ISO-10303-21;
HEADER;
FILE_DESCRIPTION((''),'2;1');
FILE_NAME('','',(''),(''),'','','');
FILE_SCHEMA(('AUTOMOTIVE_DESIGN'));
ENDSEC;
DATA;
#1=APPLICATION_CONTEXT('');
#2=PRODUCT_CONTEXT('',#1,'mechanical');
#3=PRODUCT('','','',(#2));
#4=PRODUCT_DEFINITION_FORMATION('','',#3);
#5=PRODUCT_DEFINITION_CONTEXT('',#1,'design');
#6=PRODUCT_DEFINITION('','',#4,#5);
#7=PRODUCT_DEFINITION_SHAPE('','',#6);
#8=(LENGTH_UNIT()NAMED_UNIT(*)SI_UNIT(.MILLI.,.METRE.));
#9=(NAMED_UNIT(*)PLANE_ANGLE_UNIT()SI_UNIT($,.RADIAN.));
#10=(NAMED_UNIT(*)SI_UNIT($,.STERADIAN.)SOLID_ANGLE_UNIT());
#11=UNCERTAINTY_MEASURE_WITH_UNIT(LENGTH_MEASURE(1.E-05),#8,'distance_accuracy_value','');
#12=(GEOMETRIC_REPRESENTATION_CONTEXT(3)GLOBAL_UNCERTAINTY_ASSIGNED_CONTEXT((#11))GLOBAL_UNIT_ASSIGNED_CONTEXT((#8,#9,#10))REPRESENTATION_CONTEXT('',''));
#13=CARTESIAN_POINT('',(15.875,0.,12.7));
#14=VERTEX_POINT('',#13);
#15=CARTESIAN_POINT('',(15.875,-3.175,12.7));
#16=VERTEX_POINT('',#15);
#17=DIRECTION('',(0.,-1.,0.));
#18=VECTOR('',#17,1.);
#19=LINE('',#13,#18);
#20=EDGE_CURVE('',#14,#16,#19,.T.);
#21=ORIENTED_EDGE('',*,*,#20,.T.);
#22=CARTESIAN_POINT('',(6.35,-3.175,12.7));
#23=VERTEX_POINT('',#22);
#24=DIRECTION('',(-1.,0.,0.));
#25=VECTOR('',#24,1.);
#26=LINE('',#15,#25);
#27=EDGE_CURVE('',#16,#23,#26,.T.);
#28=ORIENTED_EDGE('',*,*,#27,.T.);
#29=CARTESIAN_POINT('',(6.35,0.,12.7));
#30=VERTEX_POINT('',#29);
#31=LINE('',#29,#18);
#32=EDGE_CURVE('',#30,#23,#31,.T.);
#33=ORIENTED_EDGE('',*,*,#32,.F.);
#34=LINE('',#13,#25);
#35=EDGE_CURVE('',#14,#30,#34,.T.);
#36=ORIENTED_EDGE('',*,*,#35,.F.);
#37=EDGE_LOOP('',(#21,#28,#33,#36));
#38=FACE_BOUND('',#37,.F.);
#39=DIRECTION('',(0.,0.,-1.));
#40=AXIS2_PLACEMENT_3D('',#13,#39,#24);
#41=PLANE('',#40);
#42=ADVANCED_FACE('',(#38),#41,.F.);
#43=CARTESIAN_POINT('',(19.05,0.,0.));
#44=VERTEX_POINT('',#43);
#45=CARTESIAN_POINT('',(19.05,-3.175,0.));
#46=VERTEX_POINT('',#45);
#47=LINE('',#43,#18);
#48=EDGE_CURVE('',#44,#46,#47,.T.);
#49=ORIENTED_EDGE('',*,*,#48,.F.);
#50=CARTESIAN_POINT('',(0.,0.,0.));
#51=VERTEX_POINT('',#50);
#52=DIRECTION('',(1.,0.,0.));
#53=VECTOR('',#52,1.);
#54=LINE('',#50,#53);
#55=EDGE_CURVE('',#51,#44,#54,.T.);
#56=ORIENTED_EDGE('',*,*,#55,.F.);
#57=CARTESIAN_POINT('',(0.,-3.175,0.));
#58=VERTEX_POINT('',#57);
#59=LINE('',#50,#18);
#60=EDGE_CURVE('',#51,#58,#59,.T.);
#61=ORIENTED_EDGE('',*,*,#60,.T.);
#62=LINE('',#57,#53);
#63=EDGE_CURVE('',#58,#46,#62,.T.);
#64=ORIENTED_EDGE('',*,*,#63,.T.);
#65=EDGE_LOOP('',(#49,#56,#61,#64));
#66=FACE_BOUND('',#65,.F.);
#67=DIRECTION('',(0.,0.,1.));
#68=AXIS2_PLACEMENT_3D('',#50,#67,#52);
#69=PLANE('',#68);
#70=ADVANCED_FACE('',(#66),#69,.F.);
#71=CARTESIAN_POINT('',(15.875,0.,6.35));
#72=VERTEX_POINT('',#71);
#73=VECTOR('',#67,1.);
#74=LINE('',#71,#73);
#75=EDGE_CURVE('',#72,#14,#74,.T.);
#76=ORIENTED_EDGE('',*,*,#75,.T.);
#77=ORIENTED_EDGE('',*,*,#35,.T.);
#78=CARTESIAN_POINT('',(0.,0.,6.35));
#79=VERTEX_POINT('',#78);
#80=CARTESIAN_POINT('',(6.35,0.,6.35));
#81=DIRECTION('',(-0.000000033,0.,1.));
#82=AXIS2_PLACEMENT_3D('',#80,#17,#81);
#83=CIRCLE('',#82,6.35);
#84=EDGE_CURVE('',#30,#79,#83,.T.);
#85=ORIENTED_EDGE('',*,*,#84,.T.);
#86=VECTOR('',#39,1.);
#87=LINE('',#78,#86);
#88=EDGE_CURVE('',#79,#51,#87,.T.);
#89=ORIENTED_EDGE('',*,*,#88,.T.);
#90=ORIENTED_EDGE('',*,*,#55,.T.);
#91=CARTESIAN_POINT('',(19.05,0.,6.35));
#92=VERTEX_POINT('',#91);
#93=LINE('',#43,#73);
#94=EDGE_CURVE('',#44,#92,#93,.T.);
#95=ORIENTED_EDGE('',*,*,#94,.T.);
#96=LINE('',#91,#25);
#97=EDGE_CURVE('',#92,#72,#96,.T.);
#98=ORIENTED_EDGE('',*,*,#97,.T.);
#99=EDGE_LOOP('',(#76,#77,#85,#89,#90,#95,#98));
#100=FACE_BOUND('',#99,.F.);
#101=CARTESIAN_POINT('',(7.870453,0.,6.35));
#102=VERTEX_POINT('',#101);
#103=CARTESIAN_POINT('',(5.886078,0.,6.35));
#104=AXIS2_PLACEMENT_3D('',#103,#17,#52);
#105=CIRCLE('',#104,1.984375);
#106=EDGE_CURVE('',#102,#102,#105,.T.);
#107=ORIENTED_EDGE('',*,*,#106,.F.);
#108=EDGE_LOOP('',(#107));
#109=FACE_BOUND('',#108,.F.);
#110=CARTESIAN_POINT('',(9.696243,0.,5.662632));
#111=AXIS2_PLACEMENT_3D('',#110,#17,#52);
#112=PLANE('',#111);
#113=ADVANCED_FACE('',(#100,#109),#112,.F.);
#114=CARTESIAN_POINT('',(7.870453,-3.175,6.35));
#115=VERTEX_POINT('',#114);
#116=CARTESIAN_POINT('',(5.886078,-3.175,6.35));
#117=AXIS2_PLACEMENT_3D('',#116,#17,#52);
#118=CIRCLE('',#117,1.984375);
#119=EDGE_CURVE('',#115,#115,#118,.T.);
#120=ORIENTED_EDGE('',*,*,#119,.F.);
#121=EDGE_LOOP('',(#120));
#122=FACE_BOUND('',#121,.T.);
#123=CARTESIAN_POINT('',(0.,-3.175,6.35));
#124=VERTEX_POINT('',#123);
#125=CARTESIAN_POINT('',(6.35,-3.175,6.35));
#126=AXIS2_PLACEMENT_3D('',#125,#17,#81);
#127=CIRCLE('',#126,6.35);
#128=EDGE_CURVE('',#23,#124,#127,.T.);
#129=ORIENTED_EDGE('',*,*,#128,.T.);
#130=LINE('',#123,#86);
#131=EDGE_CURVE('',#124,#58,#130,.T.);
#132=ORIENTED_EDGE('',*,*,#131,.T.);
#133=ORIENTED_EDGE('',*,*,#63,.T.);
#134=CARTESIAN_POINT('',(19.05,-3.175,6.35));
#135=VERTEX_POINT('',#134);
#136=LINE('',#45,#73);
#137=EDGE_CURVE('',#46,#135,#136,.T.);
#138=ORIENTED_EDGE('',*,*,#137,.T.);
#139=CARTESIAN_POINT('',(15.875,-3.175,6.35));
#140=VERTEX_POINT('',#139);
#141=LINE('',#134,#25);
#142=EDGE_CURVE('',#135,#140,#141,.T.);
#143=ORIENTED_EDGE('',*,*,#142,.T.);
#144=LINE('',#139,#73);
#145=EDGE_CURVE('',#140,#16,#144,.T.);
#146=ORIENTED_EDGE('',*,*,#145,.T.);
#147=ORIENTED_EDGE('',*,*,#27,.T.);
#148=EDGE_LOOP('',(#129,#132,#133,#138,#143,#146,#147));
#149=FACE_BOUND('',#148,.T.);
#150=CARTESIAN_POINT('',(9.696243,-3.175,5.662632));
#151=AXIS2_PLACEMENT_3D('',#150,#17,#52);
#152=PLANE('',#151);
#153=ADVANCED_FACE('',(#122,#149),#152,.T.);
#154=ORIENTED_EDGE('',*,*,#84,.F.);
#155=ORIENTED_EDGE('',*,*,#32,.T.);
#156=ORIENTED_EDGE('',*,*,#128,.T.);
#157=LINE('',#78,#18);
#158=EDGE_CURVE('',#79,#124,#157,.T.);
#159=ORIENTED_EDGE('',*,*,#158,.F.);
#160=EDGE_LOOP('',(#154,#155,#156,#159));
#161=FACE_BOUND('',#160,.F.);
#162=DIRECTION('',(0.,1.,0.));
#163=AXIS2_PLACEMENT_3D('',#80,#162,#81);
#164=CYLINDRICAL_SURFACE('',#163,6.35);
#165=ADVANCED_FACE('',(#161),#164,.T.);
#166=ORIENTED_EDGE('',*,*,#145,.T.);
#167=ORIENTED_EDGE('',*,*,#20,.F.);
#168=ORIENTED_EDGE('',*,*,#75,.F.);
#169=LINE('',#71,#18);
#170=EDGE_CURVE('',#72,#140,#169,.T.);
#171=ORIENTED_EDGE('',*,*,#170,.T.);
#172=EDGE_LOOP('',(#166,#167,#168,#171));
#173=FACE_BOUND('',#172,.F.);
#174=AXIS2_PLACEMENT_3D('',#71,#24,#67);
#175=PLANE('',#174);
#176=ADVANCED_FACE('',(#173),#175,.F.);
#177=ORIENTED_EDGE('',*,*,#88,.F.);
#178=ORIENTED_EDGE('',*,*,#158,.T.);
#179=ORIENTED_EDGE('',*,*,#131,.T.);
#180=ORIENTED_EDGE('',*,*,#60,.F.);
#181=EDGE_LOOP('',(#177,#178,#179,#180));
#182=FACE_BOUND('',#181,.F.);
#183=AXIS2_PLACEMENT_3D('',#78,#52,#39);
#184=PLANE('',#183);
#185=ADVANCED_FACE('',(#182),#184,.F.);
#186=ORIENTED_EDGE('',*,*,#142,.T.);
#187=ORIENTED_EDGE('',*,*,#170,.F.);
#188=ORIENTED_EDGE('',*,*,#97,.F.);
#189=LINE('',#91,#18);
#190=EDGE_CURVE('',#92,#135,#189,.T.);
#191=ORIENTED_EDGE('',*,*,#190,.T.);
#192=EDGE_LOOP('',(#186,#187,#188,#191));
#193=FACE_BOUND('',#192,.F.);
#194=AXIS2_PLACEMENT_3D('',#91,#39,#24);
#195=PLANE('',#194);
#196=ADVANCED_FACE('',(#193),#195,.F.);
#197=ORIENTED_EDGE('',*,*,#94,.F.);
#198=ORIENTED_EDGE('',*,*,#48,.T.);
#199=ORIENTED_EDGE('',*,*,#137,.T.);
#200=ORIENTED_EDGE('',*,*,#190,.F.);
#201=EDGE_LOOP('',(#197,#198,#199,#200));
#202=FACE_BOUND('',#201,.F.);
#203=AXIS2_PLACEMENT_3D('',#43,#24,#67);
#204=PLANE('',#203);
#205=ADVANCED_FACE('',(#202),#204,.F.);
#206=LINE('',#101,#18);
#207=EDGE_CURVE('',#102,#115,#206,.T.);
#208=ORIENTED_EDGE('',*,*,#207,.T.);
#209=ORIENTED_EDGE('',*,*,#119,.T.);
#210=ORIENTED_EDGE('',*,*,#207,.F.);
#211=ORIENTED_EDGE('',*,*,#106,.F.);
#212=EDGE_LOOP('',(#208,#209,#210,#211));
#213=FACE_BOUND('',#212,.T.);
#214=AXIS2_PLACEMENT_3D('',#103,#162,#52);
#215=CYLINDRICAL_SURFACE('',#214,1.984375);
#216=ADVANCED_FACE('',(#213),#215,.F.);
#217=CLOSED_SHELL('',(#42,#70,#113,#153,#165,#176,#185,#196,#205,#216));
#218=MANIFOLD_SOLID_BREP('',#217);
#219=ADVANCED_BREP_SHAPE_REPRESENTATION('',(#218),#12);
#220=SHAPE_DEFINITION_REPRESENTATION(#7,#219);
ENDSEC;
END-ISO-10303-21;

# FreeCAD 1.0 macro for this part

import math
import FreeCAD as App
import Part
import Sketcher

V = App.Vector
Q = App.Units.Quantity

doc = App.newDocument("Part")
params = doc.addObject("Spreadsheet::Sheet", "Params")
for row, (alias, value) in enumerate([
    ("sketch1_radius", "0.25 in"),
    ("sketch1_diameter", "0.15625 in"),
    ("sketch1_width", "0.75 in"),
    ("sketch1_width2", "0.125 in"),
    ("pad1_length", "0.125 in"),
], start=1):
    params.set(f"A{row}", alias)
    params.set(f"B{row}", "=" + value)
    params.setAlias(f"B{row}", alias)

body = doc.addObject("PartDesign::Body", "Body")

# Sketch on XZ plane
sketch1 = body.newObject("Sketcher::SketchObject", "Sketch")
sketch1.AttachmentSupport = (doc.getObject("XZ_Plane"), [""])
sketch1.MapMode = "FlatFace"
sketch1.addGeometry([
    Part.LineSegment(V(0, 6.35, 0), V(0, 0, 0)),  # 0
    Part.LineSegment(V(0, 0, 0), V(19.05, 0, 0)),  # 1
    Part.LineSegment(V(19.05, 0, 0), V(19.05, 6.35, 0)),  # 2
    Part.LineSegment(V(19.05, 6.35, 0), V(15.875, 6.35, 0)),  # 3
    Part.LineSegment(V(15.875, 6.35, 0), V(15.875, 12.7, 0)),  # 4
    Part.LineSegment(V(15.875, 12.7, 0), V(6.35, 12.7, 0)),  # 5
    Part.ArcOfCircle(Part.Circle(V(6.35, 6.35, 0), V(0, 0, 1), 6.35), math.radians(90.000002), math.radians(179.999998)),  # 6
    Part.Circle(V(5.886078, 6.35, 0), V(0, 0, 1), 1.984375),  # 7
], False)
sketch1.addConstraint([
    Sketcher.Constraint("Coincident", 0, 2, 1, 1),
    Sketcher.Constraint("Coincident", 1, 2, 2, 1),
    Sketcher.Constraint("Coincident", 2, 2, 3, 1),
    Sketcher.Constraint("Coincident", 3, 2, 4, 1),
    Sketcher.Constraint("Coincident", 4, 2, 5, 1),
    Sketcher.Constraint("Tangent", 5, 2, 6, 1),
    Sketcher.Constraint("Tangent", 6, 2, 0, 1),
    Sketcher.Constraint("Vertical", 0),
    Sketcher.Constraint("Horizontal", 1),
    Sketcher.Constraint("Vertical", 2),
    Sketcher.Constraint("Horizontal", 3),
    Sketcher.Constraint("Vertical", 4),
    Sketcher.Constraint("Horizontal", 5),
    Sketcher.Constraint("Coincident", 0, 2, -1, 1),
    Sketcher.Constraint("Horizontal", 6, 3, 7, 3),
    Sketcher.Constraint("Horizontal", 7, 3, 2, 2),
    Sketcher.Constraint("Equal", 2, 4),
    Sketcher.Constraint("Radius", 6, Q("0.25 in")),
    Sketcher.Constraint("Diameter", 7, Q("0.15625 in")),
    Sketcher.Constraint("DistanceX", 1, 1, 1, 2, Q("0.75 in")),
    Sketcher.Constraint("DistanceX", 3, 2, 3, 1, Q("0.125 in")),
    Sketcher.Constraint("DistanceX", -1, 1, 7, 3, 5.886078),
])
sketch1.setExpression("Constraints[17]", "Params.sketch1_radius")
sketch1.setExpression("Constraints[18]", "Params.sketch1_diameter")
sketch1.setExpression("Constraints[19]", "Params.sketch1_width")
sketch1.setExpression("Constraints[20]", "Params.sketch1_width2")
pad1 = body.newObject("PartDesign::Pad", "Pad")
pad1.Profile = sketch1
pad1.setExpression("Length", "Params.pad1_length")

doc.recompute()
